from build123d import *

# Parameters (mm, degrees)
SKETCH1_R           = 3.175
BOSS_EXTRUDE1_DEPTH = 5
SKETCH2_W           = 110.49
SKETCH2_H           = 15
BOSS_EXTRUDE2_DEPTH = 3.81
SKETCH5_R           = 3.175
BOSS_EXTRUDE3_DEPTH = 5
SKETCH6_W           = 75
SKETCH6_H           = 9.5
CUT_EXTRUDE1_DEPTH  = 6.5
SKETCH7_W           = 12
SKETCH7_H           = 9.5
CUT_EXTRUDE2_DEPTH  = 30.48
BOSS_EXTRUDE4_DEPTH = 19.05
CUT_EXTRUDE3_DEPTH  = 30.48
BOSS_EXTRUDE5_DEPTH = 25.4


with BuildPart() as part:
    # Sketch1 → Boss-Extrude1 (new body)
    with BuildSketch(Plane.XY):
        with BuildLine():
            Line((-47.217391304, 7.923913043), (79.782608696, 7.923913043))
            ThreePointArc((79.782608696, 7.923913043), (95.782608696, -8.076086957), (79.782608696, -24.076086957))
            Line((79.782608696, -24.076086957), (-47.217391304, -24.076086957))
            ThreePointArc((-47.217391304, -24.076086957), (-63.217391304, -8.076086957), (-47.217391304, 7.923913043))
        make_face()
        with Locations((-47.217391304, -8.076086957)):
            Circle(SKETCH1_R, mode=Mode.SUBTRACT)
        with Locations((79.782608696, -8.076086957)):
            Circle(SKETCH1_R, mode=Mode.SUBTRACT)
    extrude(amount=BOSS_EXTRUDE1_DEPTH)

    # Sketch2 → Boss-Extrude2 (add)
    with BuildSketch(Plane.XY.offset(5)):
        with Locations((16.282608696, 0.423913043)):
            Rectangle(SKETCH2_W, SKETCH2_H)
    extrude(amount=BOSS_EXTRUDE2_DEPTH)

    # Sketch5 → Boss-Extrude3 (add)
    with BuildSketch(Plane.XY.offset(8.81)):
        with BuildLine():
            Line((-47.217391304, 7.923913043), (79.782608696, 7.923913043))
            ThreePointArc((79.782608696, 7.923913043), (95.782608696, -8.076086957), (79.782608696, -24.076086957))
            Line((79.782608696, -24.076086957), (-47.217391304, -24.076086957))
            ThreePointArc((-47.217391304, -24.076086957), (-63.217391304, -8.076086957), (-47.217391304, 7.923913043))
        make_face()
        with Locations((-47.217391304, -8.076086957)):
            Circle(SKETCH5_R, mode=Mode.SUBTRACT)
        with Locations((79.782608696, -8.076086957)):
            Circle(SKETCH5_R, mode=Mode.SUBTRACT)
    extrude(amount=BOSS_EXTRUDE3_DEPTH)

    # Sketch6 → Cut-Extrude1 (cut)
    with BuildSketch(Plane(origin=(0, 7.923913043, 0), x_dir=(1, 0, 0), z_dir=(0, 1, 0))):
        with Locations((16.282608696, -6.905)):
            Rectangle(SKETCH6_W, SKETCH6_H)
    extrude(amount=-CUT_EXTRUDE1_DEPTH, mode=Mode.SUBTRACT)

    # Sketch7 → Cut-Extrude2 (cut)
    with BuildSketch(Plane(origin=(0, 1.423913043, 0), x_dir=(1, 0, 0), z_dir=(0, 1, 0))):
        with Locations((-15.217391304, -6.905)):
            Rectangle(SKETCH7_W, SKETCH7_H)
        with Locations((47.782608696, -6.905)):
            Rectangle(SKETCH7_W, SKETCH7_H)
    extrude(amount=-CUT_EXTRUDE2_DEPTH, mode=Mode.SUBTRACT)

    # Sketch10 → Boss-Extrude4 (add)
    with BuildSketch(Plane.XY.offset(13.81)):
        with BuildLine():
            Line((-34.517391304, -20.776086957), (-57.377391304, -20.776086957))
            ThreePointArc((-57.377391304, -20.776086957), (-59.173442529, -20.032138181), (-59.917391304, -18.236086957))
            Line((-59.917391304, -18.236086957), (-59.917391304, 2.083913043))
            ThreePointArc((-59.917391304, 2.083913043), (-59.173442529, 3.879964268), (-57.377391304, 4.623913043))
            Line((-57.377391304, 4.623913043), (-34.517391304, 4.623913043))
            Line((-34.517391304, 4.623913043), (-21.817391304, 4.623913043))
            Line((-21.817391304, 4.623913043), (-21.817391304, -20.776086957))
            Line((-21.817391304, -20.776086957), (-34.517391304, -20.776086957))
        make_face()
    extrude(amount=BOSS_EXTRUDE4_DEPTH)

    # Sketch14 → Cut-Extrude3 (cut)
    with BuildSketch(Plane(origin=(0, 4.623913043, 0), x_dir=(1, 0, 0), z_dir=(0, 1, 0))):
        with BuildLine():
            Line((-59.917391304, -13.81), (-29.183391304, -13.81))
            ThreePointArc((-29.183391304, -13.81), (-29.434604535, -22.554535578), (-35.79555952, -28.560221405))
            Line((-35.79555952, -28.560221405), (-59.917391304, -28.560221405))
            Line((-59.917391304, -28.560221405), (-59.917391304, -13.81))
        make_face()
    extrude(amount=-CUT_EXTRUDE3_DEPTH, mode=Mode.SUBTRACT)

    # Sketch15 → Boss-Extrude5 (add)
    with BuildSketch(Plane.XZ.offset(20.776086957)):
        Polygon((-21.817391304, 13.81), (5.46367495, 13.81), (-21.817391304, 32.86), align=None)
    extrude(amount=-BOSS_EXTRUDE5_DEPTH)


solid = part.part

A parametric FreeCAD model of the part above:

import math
import FreeCAD as App
import Part
import Sketcher

V = App.Vector
Q = App.Units.Quantity

doc = App.newDocument("Part")
body = doc.addObject("PartDesign::Body", "Body")

# Sketch on XY plane
sketch1 = body.newObject("Sketcher::SketchObject", "Sketch")
sketch1.AttachmentSupport = (doc.getObject("XY_Plane"), [""])
sketch1.MapMode = "FlatFace"
sketch1.addGeometry(Part.LineSegment(V(79.8, 7.9, 0), V(-47.2, 7.9, 0)), False)
sketch1.addGeometry(Part.ArcOfCircle(Part.Circle(V(-47.2, -8.1, 0), V(0, 0, 1), 16), math.radians(90), math.radians(270)), False)
sketch1.addGeometry(Part.LineSegment(V(-47.2, -24.1, 0), V(79.8, -24.1, 0)), False)
sketch1.addGeometry(Part.ArcOfCircle(Part.Circle(V(79.8, -8.1, 0), V(0, 0, 1), 16), math.radians(-90), math.radians(90)), False)
sketch1.addGeometry(Part.Circle(V(79.8, -8.1, 0), V(0, 0, 1), 3.2), False)
sketch1.addGeometry(Part.Circle(V(-47.2, -8.1, 0), V(0, 0, 1), 3.2), False)
sketch1.addConstraint(Sketcher.Constraint("Tangent", 0, 2, 1, 1))
sketch1.addConstraint(Sketcher.Constraint("Tangent", 1, 2, 2, 1))
sketch1.addConstraint(Sketcher.Constraint("Tangent", 2, 2, 3, 1))
sketch1.addConstraint(Sketcher.Constraint("Tangent", 3, 2, 0, 1))
sketch1.addConstraint(Sketcher.Constraint("Horizontal", 0))
sketch1.addConstraint(Sketcher.Constraint("Horizontal", 2))
sketch1.addConstraint(Sketcher.Constraint("Coincident", 4, 3, 3, 3))
sketch1.addConstraint(Sketcher.Constraint("Coincident", 5, 3, 1, 3))
sketch1.addConstraint(Sketcher.Constraint("Equal", 4, 5))
sketch1.addConstraint(Sketcher.Constraint("Diameter", 4, Q("0.25 in")))
sketch1.addConstraint(Sketcher.Constraint("DistanceX", 0, 2, 0, 1, Q("5 in")))
sketch1.addConstraint(Sketcher.Constraint("Radius", 1, Q("16 mm")))
sketch1.addConstraint(Sketcher.Constraint("DistanceX", 1, 3, -1, 1, Q("47.217391 mm")))
sketch1.addConstraint(Sketcher.Constraint("DistanceY", 1, 3, -1, 1, Q("8.076087 mm")))
pad1 = body.newObject("PartDesign::Pad", "Pad")
pad1.Profile = sketch1
pad1.Length = 5

# Sketch on XY plane
sketch2 = body.newObject("Sketcher::SketchObject", "Sketch001")
sketch2.AttachmentSupport = (doc.getObject("XY_Plane"), [""])
sketch2.MapMode = "FlatFace"
sketch2.AttachmentOffset = App.Placement(V(0, 0, 5), App.Rotation())
sketch2.addGeometry(Part.LineSegment(V(-39, 8, 0), V(-39, -7, 0)), False)
sketch2.addGeometry(Part.LineSegment(V(-39, -7, 0), V(72, -7, 0)), False)
sketch2.addGeometry(Part.LineSegment(V(72, -7, 0), V(72, 8, 0)), False)
sketch2.addGeometry(Part.LineSegment(V(72, 8, 0), V(-39, 8, 0)), False)
sketch2.addConstraint(Sketcher.Constraint("Coincident", 0, 2, 1, 1))
sketch2.addConstraint(Sketcher.Constraint("Coincident", 1, 2, 2, 1))
sketch2.addConstraint(Sketcher.Constraint("Coincident", 2, 2, 3, 1))
sketch2.addConstraint(Sketcher.Constraint("Coincident", 3, 2, 0, 1))
sketch2.addConstraint(Sketcher.Constraint("Vertical", 0))
sketch2.addConstraint(Sketcher.Constraint("Horizontal", 1))
sketch2.addConstraint(Sketcher.Constraint("Vertical", 2))
sketch2.addConstraint(Sketcher.Constraint("Horizontal", 3))
sketch2.addConstraint(Sketcher.Constraint("DistanceX", 1, 1, 1, 2, Q("4.35 in")))
sketch2.addConstraint(Sketcher.Constraint("DistanceY", 0, 2, 0, 1, Q("15 mm")))
sketch2.addConstraint(Sketcher.Constraint("DistanceX", 0, 2, -1, 1, Q("38.962391 mm")))
sketch2.addConstraint(Sketcher.Constraint("DistanceY", 0, 2, -1, 1, Q("7.076087 mm")))
pad2 = body.newObject("PartDesign::Pad", "Pad001")
pad2.Profile = sketch2
pad2.Length = Q("0.15 in")

# Sketch on XY plane
sketch3 = body.newObject("Sketcher::SketchObject", "Sketch002")
sketch3.AttachmentSupport = (doc.getObject("XY_Plane"), [""])
sketch3.MapMode = "FlatFace"
sketch3.AttachmentOffset = App.Placement(V(0, 0, 8.81), App.Rotation())
sketch3.addGeometry(Part.LineSegment(V(79.8, 7.9, 0), V(-47.2, 7.9, 0)), False)
sketch3.addGeometry(Part.ArcOfCircle(Part.Circle(V(-47.2, -8.1, 0), V(0, 0, 1), 16), math.radians(90), math.radians(270)), False)
sketch3.addGeometry(Part.LineSegment(V(-47.2, -24.1, 0), V(79.8, -24.1, 0)), False)
sketch3.addGeometry(Part.ArcOfCircle(Part.Circle(V(79.8, -8.1, 0), V(0, 0, 1), 16), math.radians(-90), math.radians(90)), False)
sketch3.addGeometry(Part.Circle(V(79.8, -8.1, 0), V(0, 0, 1), 3.2), False)
sketch3.addGeometry(Part.Circle(V(-47.2, -8.1, 0), V(0, 0, 1), 3.2), False)
sketch3.addConstraint(Sketcher.Constraint("Tangent", 0, 2, 1, 1))
sketch3.addConstraint(Sketcher.Constraint("Tangent", 1, 2, 2, 1))
sketch3.addConstraint(Sketcher.Constraint("Tangent", 2, 2, 3, 1))
sketch3.addConstraint(Sketcher.Constraint("Tangent", 3, 2, 0, 1))
sketch3.addConstraint(Sketcher.Constraint("Horizontal", 0))
sketch3.addConstraint(Sketcher.Constraint("Horizontal", 2))
sketch3.addConstraint(Sketcher.Constraint("Coincident", 4, 3, 3, 3))
sketch3.addConstraint(Sketcher.Constraint("Coincident", 5, 3, 1, 3))
sketch3.addConstraint(Sketcher.Constraint("Equal", 4, 5))
sketch3.addConstraint(Sketcher.Constraint("Diameter", 4, Q("0.25 in")))
sketch3.addConstraint(Sketcher.Constraint("DistanceX", 0, 2, 0, 1, Q("5 in")))
sketch3.addConstraint(Sketcher.Constraint("Radius", 1, Q("16 mm")))
sketch3.addConstraint(Sketcher.Constraint("DistanceX", 1, 3, -1, 1, Q("47.217391 mm")))
sketch3.addConstraint(Sketcher.Constraint("DistanceY", 1, 3, -1, 1, Q("8.076087 mm")))
pad3 = body.newObject("PartDesign::Pad", "Pad002")
pad3.Profile = sketch3
pad3.Length = 5

# Sketch on XZ plane
sketch4 = body.newObject("Sketcher::SketchObject", "Sketch003")
sketch4.AttachmentSupport = (doc.getObject("XZ_Plane"), [""])
sketch4.MapMode = "FlatFace"
sketch4.AttachmentOffset = App.Placement(V(0, 0, -7.923913), App.Rotation())
sketch4.addGeometry(Part.LineSegment(V(-21, 2, 0), V(-21, 12, 0)), False)
sketch4.addGeometry(Part.LineSegment(V(-21, 12, 0), V(54, 12, 0)), False)
sketch4.addGeometry(Part.LineSegment(V(54, 12, 0), V(54, 2, 0)), False)
sketch4.addGeometry(Part.LineSegment(V(54, 2, 0), V(-21, 2, 0)), False)
sketch4.addConstraint(Sketcher.Constraint("Coincident", 0, 2, 1, 1))
sketch4.addConstraint(Sketcher.Constraint("Coincident", 1, 2, 2, 1))
sketch4.addConstraint(Sketcher.Constraint("Coincident", 2, 2, 3, 1))
sketch4.addConstraint(Sketcher.Constraint("Coincident", 3, 2, 0, 1))
sketch4.addConstraint(Sketcher.Constraint("Vertical", 0))
sketch4.addConstraint(Sketcher.Constraint("Horizontal", 1))
sketch4.addConstraint(Sketcher.Constraint("Vertical", 2))
sketch4.addConstraint(Sketcher.Constraint("Horizontal", 3))
sketch4.addConstraint(Sketcher.Constraint("DistanceX", 1, 1, 1, 2, Q("75 mm")))
sketch4.addConstraint(Sketcher.Constraint("DistanceY", 0, 1, 0, 2, Q("9.5 mm")))
sketch4.addConstraint(Sketcher.Constraint("DistanceY", -1, 1, 0, 2, Q("11.655 mm")))
sketch4.addConstraint(Sketcher.Constraint("DistanceX", 0, 2, -1, 1, Q("21.217391 mm")))
pocket1 = body.newObject("PartDesign::Pocket", "Pocket")
pocket1.Profile = sketch4
pocket1.Length = 6.5
pocket1.Reversed = True

# Sketch on XZ plane
sketch5 = body.newObject("Sketcher::SketchObject", "Sketch004")
sketch5.AttachmentSupport = (doc.getObject("XZ_Plane"), [""])
sketch5.MapMode = "FlatFace"
sketch5.AttachmentOffset = App.Placement(V(0, 0, -1.423913), App.Rotation())
sketch5.addGeometry(Part.LineSegment(V(-21, 2, 0), V(-21, 12, 0)), False)
sketch5.addGeometry(Part.LineSegment(V(-21, 12, 0), V(-9, 12, 0)), False)
sketch5.addGeometry(Part.LineSegment(V(-9, 12, 0), V(-9, 2, 0)), False)
sketch5.addGeometry(Part.LineSegment(V(-9, 2, 0), V(-21, 2, 0)), False)
sketch5.addGeometry(Part.LineSegment(V(42, 2, 0), V(42, 12, 0)), False)
sketch5.addGeometry(Part.LineSegment(V(42, 12, 0), V(54, 12, 0)), False)
sketch5.addGeometry(Part.LineSegment(V(54, 12, 0), V(54, 2, 0)), False)
sketch5.addGeometry(Part.LineSegment(V(54, 2, 0), V(42, 2, 0)), False)
sketch5.addConstraint(Sketcher.Constraint("Coincident", 0, 2, 1, 1))
sketch5.addConstraint(Sketcher.Constraint("Coincident", 1, 2, 2, 1))
sketch5.addConstraint(Sketcher.Constraint("Coincident", 2, 2, 3, 1))
sketch5.addConstraint(Sketcher.Constraint("Coincident", 3, 2, 0, 1))
sketch5.addConstraint(Sketcher.Constraint("Coincident", 4, 2, 5, 1))
sketch5.addConstraint(Sketcher.Constraint("Coincident", 5, 2, 6, 1))
sketch5.addConstraint(Sketcher.Constraint("Coincident", 6, 2, 7, 1))
sketch5.addConstraint(Sketcher.Constraint("Coincident", 7, 2, 4, 1))
sketch5.addConstraint(Sketcher.Constraint("Vertical", 0))
sketch5.addConstraint(Sketcher.Constraint("Horizontal", 1))
sketch5.addConstraint(Sketcher.Constraint("Vertical", 2))
sketch5.addConstraint(Sketcher.Constraint("Horizontal", 3))
sketch5.addConstraint(Sketcher.Constraint("Vertical", 4))
sketch5.addConstraint(Sketcher.Constraint("Horizontal", 5))
sketch5.addConstraint(Sketcher.Constraint("Vertical", 6))
sketch5.addConstraint(Sketcher.Constraint("Horizontal", 7))
sketch5.addConstraint(Sketcher.Constraint("Horizontal", 1, 2, 4, 2))
sketch5.addConstraint(Sketcher.Constraint("Horizontal", 3, 2, 6, 2))
sketch5.addConstraint(Sketcher.Constraint("Equal", 3, 5))
sketch5.addConstraint(Sketcher.Constraint("DistanceX", 1, 1, 1, 2, Q("12 mm")))
sketch5.addConstraint(Sketcher.Constraint("DistanceY", 0, 1, 0, 2, Q("9.5 mm")))
sketch5.addConstraint(Sketcher.Constraint("DistanceY", -1, 1, 0, 2, Q("11.655 mm")))
sketch5.addConstraint(Sketcher.Constraint("DistanceX", 1, 2, 4, 2, Q("51 mm")))
sketch5.addConstraint(Sketcher.Constraint("DistanceX", 0, 2, -1, 1, Q("21.217391 mm")))
pocket2 = body.newObject("PartDesign::Pocket", "Pocket001")
pocket2.Profile = sketch5
pocket2.Length = Q("1.2 in")
pocket2.Reversed = True

# Sketch on XY plane
sketch6 = body.newObject("Sketcher::SketchObject", "Sketch005")
sketch6.AttachmentSupport = (doc.getObject("XY_Plane"), [""])
sketch6.MapMode = "FlatFace"
sketch6.AttachmentOffset = App.Placement(V(0, 0, 13.81), App.Rotation())
sketch6.addGeometry(Part.ArcOfCircle(Part.Circle(V(-57.4, -18.2, 0), V(0, 0, 1), 2.5), math.radians(180), math.radians(270)), False)
sketch6.addGeometry(Part.LineSegment(V(-57.4, -20.8, 0), V(-21.8, -20.8, 0)), False)
sketch6.addGeometry(Part.LineSegment(V(-21.8, -20.8, 0), V(-21.8, 4.6, 0)), False)
sketch6.addGeometry(Part.LineSegment(V(-21.8, 4.6, 0), V(-57.4, 4.6, 0)), False)
sketch6.addGeometry(Part.ArcOfCircle(Part.Circle(V(-57.4, 2.1, 0), V(0, 0, 1), 2.5), math.radians(90), math.radians(180)), False)
sketch6.addGeometry(Part.LineSegment(V(-59.9, 2.1, 0), V(-59.9, -18.2, 0)), False)
sketch6.addConstraint(Sketcher.Constraint("Tangent", 0, 2, 1, 1))
sketch6.addConstraint(Sketcher.Constraint("Coincident", 1, 2, 2, 1))
sketch6.addConstraint(Sketcher.Constraint("Coincident", 2, 2, 3, 1))
sketch6.addConstraint(Sketcher.Constraint("Tangent", 3, 2, 4, 1))
sketch6.addConstraint(Sketcher.Constraint("Tangent", 4, 2, 5, 1))
sketch6.addConstraint(Sketcher.Constraint("Tangent", 5, 2, 0, 1))
sketch6.addConstraint(Sketcher.Constraint("Horizontal", 1))
sketch6.addConstraint(Sketcher.Constraint("Vertical", 2))
sketch6.addConstraint(Sketcher.Constraint("Horizontal", 3))
sketch6.addConstraint(Sketcher.Constraint("Vertical", 5))
sketch6.addConstraint(Sketcher.Constraint("Equal", 0, 4))
sketch6.addConstraint(Sketcher.Constraint("Radius", 0, Q("0.1 in")))
sketch6.addConstraint(Sketcher.Constraint("DistanceY", 2, 1, 2, 2, Q("1 in")))
sketch6.addConstraint(Sketcher.Constraint("DistanceX", 1, 1, 1, 2, Q("1.4 in")))
sketch6.addConstraint(Sketcher.Constraint("DistanceX", 0, 3, -1, 1, Q("57.377391 mm")))
sketch6.addConstraint(Sketcher.Constraint("DistanceY", 0, 3, -1, 1, Q("18.236087 mm")))
pad4 = body.newObject("PartDesign::Pad", "Pad003")
pad4.Profile = sketch6
pad4.Length = Q("0.75 in")

# Sketch on XZ plane
sketch7 = body.newObject("Sketcher::SketchObject", "Sketch006")
sketch7.AttachmentSupport = (doc.getObject("XZ_Plane"), [""])
sketch7.MapMode = "FlatFace"
sketch7.AttachmentOffset = App.Placement(V(0, 0, -4.623913), App.Rotation())
sketch7.addGeometry(Part.LineSegment(V(-29, 14, 0), V(-60, 14, 0)), False)
sketch7.addGeometry(Part.LineSegment(V(-60, 14, 0), V(-60, 29, 0)), False)
sketch7.addGeometry(Part.LineSegment(V(-60, 29, 0), V(-36, 29, 0)), False)
sketch7.addGeometry(Part.ArcOfCircle(Part.Circle(V(-40, 18, 0), V(0, 0, 1), 11), math.radians(-21), math.radians(69)), False)
sketch7.addConstraint(Sketcher.Constraint("Coincident", 0, 2, 1, 1))
sketch7.addConstraint(Sketcher.Constraint("Coincident", 1, 2, 2, 1))
sketch7.addConstraint(Sketcher.Constraint("Coincident", 2, 2, 3, 2))
sketch7.addConstraint(Sketcher.Constraint("Coincident", 3, 1, 0, 1))
sketch7.addConstraint(Sketcher.Constraint("Horizontal", 0))
sketch7.addConstraint(Sketcher.Constraint("Vertical", 1))
sketch7.addConstraint(Sketcher.Constraint("Horizontal", 2))
sketch7.addConstraint(Sketcher.Constraint("Radius", 3, Q("0.45 in")))
sketch7.addConstraint(Sketcher.Constraint("DistanceX", 0, 2, 0, 1, Q("1.21 in")))
sketch7.addConstraint(Sketcher.Constraint("DistanceX", 2, 1, 2, 2, Q("24.121832 mm")))
sketch7.addConstraint(Sketcher.Constraint("DistanceY", 1, 1, 1, 2, Q("14.750221 mm")))
sketch7.addConstraint(Sketcher.Constraint("DistanceY", -1, 1, 0, 2, Q("13.81 mm")))
sketch7.addConstraint(Sketcher.Constraint("DistanceX", 0, 2, -1, 1, Q("59.917391 mm")))
pocket3 = body.newObject("PartDesign::Pocket", "Pocket002")
pocket3.Profile = sketch7
pocket3.Length = Q("1.2 in")
pocket3.Reversed = True

# Sketch on XZ plane
sketch8 = body.newObject("Sketcher::SketchObject", "Sketch007")
sketch8.AttachmentSupport = (doc.getObject("XZ_Plane"), [""])
sketch8.MapMode = "FlatFace"
sketch8.AttachmentOffset = App.Placement(V(0, 0, 20.776087), App.Rotation())
sketch8.addGeometry(Part.LineSegment(V(-22, 14, 0), V(5, 14, 0)), False)
sketch8.addGeometry(Part.LineSegment(V(5, 14, 0), V(-22, 33, 0)), False)
sketch8.addGeometry(Part.LineSegment(V(-22, 33, 0), V(-22, 14, 0)), False)
sketch8.addConstraint(Sketcher.Constraint("Coincident", 0, 2, 1, 1))
sketch8.addConstraint(Sketcher.Constraint("Coincident", 1, 2, 2, 1))
sketch8.addConstraint(Sketcher.Constraint("Coincident", 2, 2, 0, 1))
sketch8.addConstraint(Sketcher.Constraint("Horizontal", 0))
sketch8.addConstraint(Sketcher.Constraint("Vertical", 2))
sketch8.addConstraint(Sketcher.Constraint("DistanceY", 2, 2, 2, 1, Q("0.75 in")))
sketch8.addConstraint(Sketcher.Constraint("Distance", 1, Q("1.31 in")))
sketch8.addConstraint(Sketcher.Constraint("DistanceY", -1, 1, 0, 2, Q("13.81 mm")))
sketch8.addConstraint(Sketcher.Constraint("DistanceX", 1, 2, -1, 1, Q("21.817391 mm")))
pad5 = body.newObject("PartDesign::Pad", "Pad004")
pad5.Profile = sketch8
pad5.Length = Q("1 in")
pad5.Reversed = True

doc.recompute()
